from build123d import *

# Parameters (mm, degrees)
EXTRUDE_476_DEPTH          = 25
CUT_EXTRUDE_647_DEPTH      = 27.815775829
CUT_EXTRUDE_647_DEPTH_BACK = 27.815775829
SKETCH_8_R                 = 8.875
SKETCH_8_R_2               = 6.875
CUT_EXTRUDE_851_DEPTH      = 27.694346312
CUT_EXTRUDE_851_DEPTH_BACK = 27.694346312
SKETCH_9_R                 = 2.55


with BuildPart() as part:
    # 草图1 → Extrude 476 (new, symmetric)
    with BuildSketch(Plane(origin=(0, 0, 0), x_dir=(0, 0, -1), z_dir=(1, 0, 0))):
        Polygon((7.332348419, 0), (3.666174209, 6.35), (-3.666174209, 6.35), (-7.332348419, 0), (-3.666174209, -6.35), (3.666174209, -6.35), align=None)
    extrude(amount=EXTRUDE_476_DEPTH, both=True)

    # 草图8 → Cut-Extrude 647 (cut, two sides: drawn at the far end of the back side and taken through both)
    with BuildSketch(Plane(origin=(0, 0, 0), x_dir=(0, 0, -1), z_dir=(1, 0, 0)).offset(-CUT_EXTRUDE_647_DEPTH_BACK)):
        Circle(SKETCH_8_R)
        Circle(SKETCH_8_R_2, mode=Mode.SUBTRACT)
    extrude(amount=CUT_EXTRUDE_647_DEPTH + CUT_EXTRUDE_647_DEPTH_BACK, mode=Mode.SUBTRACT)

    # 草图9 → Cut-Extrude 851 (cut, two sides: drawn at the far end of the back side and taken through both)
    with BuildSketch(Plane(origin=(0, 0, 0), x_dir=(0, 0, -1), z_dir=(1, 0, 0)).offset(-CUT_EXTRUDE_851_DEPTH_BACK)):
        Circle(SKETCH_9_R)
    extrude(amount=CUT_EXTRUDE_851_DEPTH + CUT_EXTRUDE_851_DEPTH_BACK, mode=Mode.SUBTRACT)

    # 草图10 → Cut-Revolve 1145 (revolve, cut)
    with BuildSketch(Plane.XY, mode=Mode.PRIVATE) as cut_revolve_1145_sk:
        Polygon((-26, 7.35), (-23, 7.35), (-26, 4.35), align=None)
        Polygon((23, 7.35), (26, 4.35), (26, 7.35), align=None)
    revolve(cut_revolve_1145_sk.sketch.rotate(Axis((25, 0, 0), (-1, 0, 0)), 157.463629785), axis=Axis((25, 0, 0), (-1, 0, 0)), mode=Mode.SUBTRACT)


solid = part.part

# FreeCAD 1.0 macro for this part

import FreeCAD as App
import Part
import Sketcher
Q = App.Units.Quantity


def add_polygon(sketch, points):
    """Adds a closed chain of lines whose ends are joined by coincident constraints."""
    first, n = sketch.GeometryCount, len(points)
    for a, b in zip(points, points[1:] + points[:1]):
        sketch.addGeometry(Part.LineSegment(App.Vector(*a, 0), App.Vector(*b, 0)), False)
    for i in range(n):
        sketch.addConstraint(Sketcher.Constraint("Coincident", first + i, 2, first + (i + 1) % n, 1))

doc = App.newDocument("Part")
body = doc.addObject("PartDesign::Body", "Body")

# Sketch on YZ plane
sketch1 = doc.addObject("Sketcher::SketchObject", "Sketch")
body.addObject(sketch1)
sketch1.AttachmentSupport = (doc.YZ_Plane, [""])
sketch1.MapMode = "FlatFace"
add_polygon(sketch1, [(0, -7), (6, -4), (6, 4), (0, 7), (-6, 4), (-6, -4)])  # lines 0-5
sketch1.addConstraint([
    Sketcher.Constraint("Vertical", 1),
    Sketcher.Constraint("Vertical", 4),
    Sketcher.Constraint("Symmetric", 0, 2, 3, 2, -1, 1),
    Sketcher.Constraint("Symmetric", 2, 2, 5, 2, -1, 1),
    Sketcher.Constraint("PointOnObject", 2, 2, -2),
    Sketcher.Constraint("Parallel", 2, 5),
    Sketcher.Constraint("Horizontal", 1, 2, 3, 2),
    Sketcher.Constraint("Angle", 0, Q("30 deg")),
    Sketcher.Constraint("DistanceX", 3, 2, 1, 2, Q("12.7 mm")),
    Sketcher.Constraint("DistanceY", 1, 1, 1, 2, Q("7.332348 mm")),
])
pad1 = doc.addObject("PartDesign::Pad", "Pad")
body.addObject(pad1)
pad1.Profile = sketch1
pad1.Length = 50
pad1.Midplane = True

# Sketch on YZ plane
sketch2 = doc.addObject("Sketcher::SketchObject", "Sketch001")
body.addObject(sketch2)
sketch2.AttachmentSupport = (doc.YZ_Plane, [""])
sketch2.MapMode = "FlatFace"
sketch2.addGeometry([
    Part.Circle(App.Vector(0, 0, 0), App.Vector(0, 0, 1), 9),
    Part.Circle(App.Vector(0, 0, 0), App.Vector(0, 0, 1), 7),
], False)
sketch2.addConstraint([
    Sketcher.Constraint("Coincident", 0, 3, -1, 1),
    Sketcher.Constraint("Coincident", 1, 3, -1, 1),
    Sketcher.Constraint("Diameter", 0, Q("17.75 mm")),
    Sketcher.Constraint("Diameter", 1, Q("13.75 mm")),
])
pocket1 = doc.addObject("PartDesign::Pocket", "Pocket")
body.addObject(pocket1)
pocket1.Profile = sketch2
pocket1.Type = "ThroughAll"
pocket1.Midplane = True

# Sketch on YZ plane
sketch3 = doc.addObject("Sketcher::SketchObject", "Sketch002")
body.addObject(sketch3)
sketch3.AttachmentSupport = (doc.YZ_Plane, [""])
sketch3.MapMode = "FlatFace"
sketch3.addGeometry(Part.Circle(App.Vector(0, 0, 0), App.Vector(0, 0, 1), 2.5), False)
sketch3.addConstraint([
    Sketcher.Constraint("Coincident", 0, 3, -1, 1),
    Sketcher.Constraint("Diameter", 0, Q("5.1 mm")),
])
pocket2 = doc.addObject("PartDesign::Pocket", "Pocket001")
body.addObject(pocket2)
pocket2.Profile = sketch3
pocket2.Type = "ThroughAll"
pocket2.Midplane = True

# Sketch on XY plane
sketch4 = doc.addObject("Sketcher::SketchObject", "Sketch003")
body.addObject(sketch4)
sketch4.AttachmentSupport = (doc.XY_Plane, [""])
sketch4.MapMode = "FlatFace"
add_polygon(sketch4, [(-23, 7.3), (-26, 7.3), (-26, 4.3)])  # lines 0-2
add_polygon(sketch4, [(23, 7.3), (26, 4.3), (26, 7.3)])  # lines 3-5
sketch4.addConstraint([
    Sketcher.Constraint("Horizontal", 0),
    Sketcher.Constraint("Vertical", 1),
    Sketcher.Constraint("Vertical", 4),
    Sketcher.Constraint("Horizontal", 5),
    Sketcher.Constraint("Symmetric", 1, 2, 3, 2, -2),
    Sketcher.Constraint("Symmetric", 2, 2, 5, 2, -2),
    Sketcher.Constraint("Perpendicular", 2, 3),
    Sketcher.Constraint("DistanceX", 0, 2, 0, 1, Q("3 mm")),
    Sketcher.Constraint("DistanceX", 0, 2, -1, 1, Q("26 mm")),
    Sketcher.Constraint("DistanceY", -1, 1, 0, 2, Q("7.35 mm")),
])
groove = doc.addObject("PartDesign::Groove", "Groove")
body.addObject(groove)
groove.Profile = sketch4
groove.ReferenceAxis = (sketch4, ["H_Axis"])
groove.Angle = 360

doc.recompute()
